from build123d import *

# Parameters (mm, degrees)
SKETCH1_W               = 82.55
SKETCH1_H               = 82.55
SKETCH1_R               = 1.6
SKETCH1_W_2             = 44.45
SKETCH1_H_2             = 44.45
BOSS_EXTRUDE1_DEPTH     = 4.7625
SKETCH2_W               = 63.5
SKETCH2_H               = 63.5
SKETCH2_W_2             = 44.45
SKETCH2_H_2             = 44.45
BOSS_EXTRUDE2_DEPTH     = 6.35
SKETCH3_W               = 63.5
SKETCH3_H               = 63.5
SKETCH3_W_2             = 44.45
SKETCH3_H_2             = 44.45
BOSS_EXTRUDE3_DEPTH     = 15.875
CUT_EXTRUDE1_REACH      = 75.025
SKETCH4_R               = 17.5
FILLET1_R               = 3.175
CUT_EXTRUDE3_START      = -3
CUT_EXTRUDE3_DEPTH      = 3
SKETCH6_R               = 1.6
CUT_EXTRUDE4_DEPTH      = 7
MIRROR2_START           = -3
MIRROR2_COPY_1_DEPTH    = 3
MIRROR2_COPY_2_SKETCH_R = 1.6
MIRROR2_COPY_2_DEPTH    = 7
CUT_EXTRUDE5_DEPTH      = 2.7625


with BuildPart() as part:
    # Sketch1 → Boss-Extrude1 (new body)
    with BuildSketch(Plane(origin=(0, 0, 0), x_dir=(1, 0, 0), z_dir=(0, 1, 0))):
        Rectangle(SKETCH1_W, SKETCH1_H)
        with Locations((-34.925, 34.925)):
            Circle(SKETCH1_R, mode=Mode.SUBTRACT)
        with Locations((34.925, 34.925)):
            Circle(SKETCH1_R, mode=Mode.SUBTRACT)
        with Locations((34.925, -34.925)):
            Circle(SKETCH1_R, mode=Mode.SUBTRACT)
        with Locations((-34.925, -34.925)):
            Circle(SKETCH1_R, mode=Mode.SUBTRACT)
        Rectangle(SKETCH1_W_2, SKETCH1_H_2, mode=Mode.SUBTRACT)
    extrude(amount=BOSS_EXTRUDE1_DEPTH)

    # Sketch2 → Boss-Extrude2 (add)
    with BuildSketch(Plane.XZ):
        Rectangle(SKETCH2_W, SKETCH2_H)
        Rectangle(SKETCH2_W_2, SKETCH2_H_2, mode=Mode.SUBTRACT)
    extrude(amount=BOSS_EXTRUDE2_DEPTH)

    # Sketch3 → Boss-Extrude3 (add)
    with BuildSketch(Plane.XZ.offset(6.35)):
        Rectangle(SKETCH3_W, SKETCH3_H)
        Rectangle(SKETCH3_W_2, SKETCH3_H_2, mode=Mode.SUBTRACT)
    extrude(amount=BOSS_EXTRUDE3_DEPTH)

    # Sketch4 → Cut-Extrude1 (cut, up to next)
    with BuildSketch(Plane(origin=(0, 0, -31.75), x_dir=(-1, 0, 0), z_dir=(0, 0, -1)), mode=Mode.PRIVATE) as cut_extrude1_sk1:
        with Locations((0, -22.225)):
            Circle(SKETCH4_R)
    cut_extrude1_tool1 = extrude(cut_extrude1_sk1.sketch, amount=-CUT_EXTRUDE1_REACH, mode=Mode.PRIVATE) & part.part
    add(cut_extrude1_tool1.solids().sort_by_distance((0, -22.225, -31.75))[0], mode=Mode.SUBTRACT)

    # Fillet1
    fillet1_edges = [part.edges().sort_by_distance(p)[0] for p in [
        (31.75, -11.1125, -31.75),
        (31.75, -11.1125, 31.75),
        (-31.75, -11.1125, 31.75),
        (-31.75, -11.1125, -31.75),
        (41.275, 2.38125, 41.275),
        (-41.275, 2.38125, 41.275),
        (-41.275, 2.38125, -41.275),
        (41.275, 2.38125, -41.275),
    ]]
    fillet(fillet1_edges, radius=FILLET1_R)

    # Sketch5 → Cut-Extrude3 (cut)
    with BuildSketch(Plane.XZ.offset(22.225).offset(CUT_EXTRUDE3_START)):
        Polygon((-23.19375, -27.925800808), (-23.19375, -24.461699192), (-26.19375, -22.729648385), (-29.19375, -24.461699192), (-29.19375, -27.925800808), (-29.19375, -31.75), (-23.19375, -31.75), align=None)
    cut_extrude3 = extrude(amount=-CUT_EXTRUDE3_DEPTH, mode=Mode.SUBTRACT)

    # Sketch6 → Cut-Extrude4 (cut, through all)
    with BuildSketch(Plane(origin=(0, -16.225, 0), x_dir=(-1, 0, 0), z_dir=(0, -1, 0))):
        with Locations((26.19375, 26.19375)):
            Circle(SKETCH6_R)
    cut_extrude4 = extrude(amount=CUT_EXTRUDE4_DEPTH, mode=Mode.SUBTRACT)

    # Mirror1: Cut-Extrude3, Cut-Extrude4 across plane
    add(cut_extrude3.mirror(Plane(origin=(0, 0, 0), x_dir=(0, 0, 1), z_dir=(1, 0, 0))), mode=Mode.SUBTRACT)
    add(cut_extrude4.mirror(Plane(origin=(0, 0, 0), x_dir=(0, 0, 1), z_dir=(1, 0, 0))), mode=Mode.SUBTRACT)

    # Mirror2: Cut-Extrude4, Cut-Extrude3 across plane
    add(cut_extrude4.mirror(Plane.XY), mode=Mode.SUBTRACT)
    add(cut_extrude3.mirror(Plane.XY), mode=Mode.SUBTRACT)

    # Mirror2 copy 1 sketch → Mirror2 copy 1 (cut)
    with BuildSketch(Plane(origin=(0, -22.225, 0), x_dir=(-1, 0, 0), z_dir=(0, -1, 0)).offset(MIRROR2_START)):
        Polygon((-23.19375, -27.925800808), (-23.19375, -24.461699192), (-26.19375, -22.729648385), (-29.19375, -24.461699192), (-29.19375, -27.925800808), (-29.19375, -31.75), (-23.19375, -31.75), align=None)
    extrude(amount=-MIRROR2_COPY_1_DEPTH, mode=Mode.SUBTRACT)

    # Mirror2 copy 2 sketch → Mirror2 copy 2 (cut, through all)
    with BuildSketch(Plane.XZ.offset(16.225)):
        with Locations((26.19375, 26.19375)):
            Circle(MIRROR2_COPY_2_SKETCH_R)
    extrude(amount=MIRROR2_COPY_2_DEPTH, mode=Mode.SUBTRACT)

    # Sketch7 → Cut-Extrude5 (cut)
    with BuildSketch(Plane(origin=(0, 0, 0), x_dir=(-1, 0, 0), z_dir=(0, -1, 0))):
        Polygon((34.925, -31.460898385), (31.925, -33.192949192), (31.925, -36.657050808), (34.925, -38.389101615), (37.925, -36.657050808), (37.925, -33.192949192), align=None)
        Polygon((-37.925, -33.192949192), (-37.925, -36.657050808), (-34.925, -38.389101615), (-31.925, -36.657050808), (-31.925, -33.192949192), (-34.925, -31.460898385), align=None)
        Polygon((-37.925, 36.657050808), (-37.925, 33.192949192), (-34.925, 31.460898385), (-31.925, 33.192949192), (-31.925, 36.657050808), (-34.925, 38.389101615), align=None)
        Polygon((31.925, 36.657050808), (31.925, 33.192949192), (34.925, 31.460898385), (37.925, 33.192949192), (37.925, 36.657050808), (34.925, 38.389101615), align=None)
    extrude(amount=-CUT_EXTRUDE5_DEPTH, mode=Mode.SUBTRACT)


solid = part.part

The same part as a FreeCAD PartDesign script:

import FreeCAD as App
import Part
import Sketcher

V = App.Vector
Q = App.Units.Quantity


def edges_at(feature, points):
    """Names of the edges that pass closest to the given points."""
    edges = feature.Shape.Edges
    near = lambda p: min(range(len(edges)), key=lambda i: edges[i].distToShape(Part.Vertex(*p))[0])
    return sorted({f"Edge{near(p) + 1}" for p in points})


def add_polygon(sketch, points):
    """Adds a closed chain of lines whose ends are joined by coincident constraints."""
    first, n = sketch.GeometryCount, len(points)
    for a, b in zip(points, points[1:] + points[:1]):
        sketch.addGeometry(Part.LineSegment(App.Vector(*a, 0), App.Vector(*b, 0)), False)
    for i in range(n):
        sketch.addConstraint(Sketcher.Constraint("Coincident", first + i, 2, first + (i + 1) % n, 1))

doc = App.newDocument("Part")
body = doc.addObject("PartDesign::Body", "Body")

# Sketch on XZ plane
sketch1 = doc.addObject("Sketcher::SketchObject", "Sketch")
body.addObject(sketch1)
sketch1.AttachmentSupport = (doc.XZ_Plane, [""])
sketch1.MapMode = "FlatFace"
add_polygon(sketch1, [(-41.3, -41.3), (-41.3, 41.3), (41.3, 41.3), (41.3, -41.3)])  # lines 0-3
sketch1.addGeometry(Part.Circle(V(-34.9, 34.9, 0), V(0, 0, 1), 1.6), False)  # 4
sketch1.addGeometry(Part.Circle(V(34.9, 34.9, 0), V(0, 0, 1), 1.6), False)  # 5
sketch1.addGeometry(Part.Circle(V(-34.9, -34.9, 0), V(0, 0, 1), 1.6), False)  # 6
add_polygon(sketch1, [(22.2, 22.2), (-22.2, 22.2), (-22.2, -22.2), (22.2, -22.2)])  # lines 7-10
sketch1.addGeometry(Part.Circle(V(34.9, -34.9, 0), V(0, 0, 1), 1.6), False)  # 11
sketch1.addConstraint([
    Sketcher.Constraint("Vertical", 0),
    Sketcher.Constraint("Horizontal", 1),
    Sketcher.Constraint("Vertical", 2),
    Sketcher.Constraint("Horizontal", 3),
    Sketcher.Constraint("Horizontal", 7),
    Sketcher.Constraint("Vertical", 8),
    Sketcher.Constraint("Horizontal", 9),
    Sketcher.Constraint("Vertical", 10),
    Sketcher.Constraint("Equal", 4, 5),
    Sketcher.Constraint("Equal", 5, 6),
    Sketcher.Constraint("Equal", 6, 11),
    Sketcher.Constraint("Symmetric", 5, 3, 6, 3, -1, 1),
    Sketcher.Constraint("Symmetric", 4, 3, 11, 3, -1, 1),
    Sketcher.Constraint("Symmetric", 0, 2, 2, 2, -1, 1),
    Sketcher.Constraint("Symmetric", 7, 2, 9, 2, -1, 1),
    Sketcher.Constraint("Symmetric", 4, 3, 5, 3, -2),
    Sketcher.Constraint("Equal", 3, 0),
    Sketcher.Constraint("Equal", 9, 8),
    Sketcher.Constraint("DistanceX", 0, 2, 5, 3, Q("3 in")),
    Sketcher.Constraint("DistanceY", 6, 3, 0, 2, Q("3 in")),
    Sketcher.Constraint("DistanceX", 1, 1, 1, 2, Q("3.25 in")),
    Sketcher.Constraint("DistanceX", 7, 2, 7, 1, Q("1.75 in")),
    Sketcher.Constraint("Diameter", 4, 3.2),
])
pad1 = doc.addObject("PartDesign::Pad", "Pad")
body.addObject(pad1)
pad1.Profile = sketch1
pad1.Length = Q("0.1875 in")
pad1.Reversed = True

# Sketch on XZ plane
sketch2 = doc.addObject("Sketcher::SketchObject", "Sketch001")
body.addObject(sketch2)
sketch2.AttachmentSupport = (doc.XZ_Plane, [""])
sketch2.MapMode = "FlatFace"
add_polygon(sketch2, [(-32, 32), (-32, -32), (32, -32), (32, 32)])  # lines 0-3
add_polygon(sketch2, [(22, -22), (-22, -22), (-22, 22), (22, 22)])  # lines 4-7
sketch2.addConstraint([
    Sketcher.Constraint("Vertical", 0),
    Sketcher.Constraint("Horizontal", 1),
    Sketcher.Constraint("Vertical", 2),
    Sketcher.Constraint("Horizontal", 3),
    Sketcher.Constraint("Horizontal", 4),
    Sketcher.Constraint("Vertical", 5),
    Sketcher.Constraint("Horizontal", 6),
    Sketcher.Constraint("Vertical", 7),
    Sketcher.Constraint("Symmetric", 0, 2, 2, 2, -1, 1),
    Sketcher.Constraint("Symmetric", 4, 2, 6, 2, -1, 1),
    Sketcher.Constraint("Equal", 3, 0),
    Sketcher.Constraint("Equal", 6, 5),
    Sketcher.Constraint("DistanceX", 1, 1, 1, 2, Q("2.5 in")),
    Sketcher.Constraint("DistanceX", 4, 2, 4, 1, Q("1.75 in")),
])
pad2 = doc.addObject("PartDesign::Pad", "Pad001")
body.addObject(pad2)
pad2.Profile = sketch2
pad2.Length = Q("0.25 in")

# Sketch on XZ plane
sketch3 = doc.addObject("Sketcher::SketchObject", "Sketch002")
body.addObject(sketch3)
sketch3.AttachmentSupport = (doc.XZ_Plane, [""])
sketch3.MapMode = "FlatFace"
sketch3.AttachmentOffset = App.Placement(V(0, 0, 0.25 * 25.4), App.Rotation())
add_polygon(sketch3, [(-32, 32), (-32, -32), (32, -32), (32, 32)])  # lines 0-3
add_polygon(sketch3, [(22, -22), (-22, -22), (-22, 22), (22, 22)])  # lines 4-7
sketch3.addConstraint([
    Sketcher.Constraint("Vertical", 0),
    Sketcher.Constraint("Horizontal", 1),
    Sketcher.Constraint("Vertical", 2),
    Sketcher.Constraint("Horizontal", 3),
    Sketcher.Constraint("Horizontal", 4),
    Sketcher.Constraint("Vertical", 5),
    Sketcher.Constraint("Horizontal", 6),
    Sketcher.Constraint("Vertical", 7),
    Sketcher.Constraint("Symmetric", 0, 2, 2, 2, -1, 1),
    Sketcher.Constraint("Symmetric", 4, 2, 6, 2, -1, 1),
    Sketcher.Constraint("Equal", 3, 0),
    Sketcher.Constraint("Equal", 6, 5),
    Sketcher.Constraint("DistanceX", 1, 1, 1, 2, Q("2.5 in")),
    Sketcher.Constraint("DistanceX", 4, 2, 4, 1, Q("1.75 in")),
])
pad3 = doc.addObject("PartDesign::Pad", "Pad002")
body.addObject(pad3)
pad3.Profile = sketch3
pad3.Length = Q("0.625 in")

# Sketch on XY plane
sketch4 = doc.addObject("Sketcher::SketchObject", "Sketch003")
body.addObject(sketch4)
sketch4.AttachmentSupport = (doc.XY_Plane, [""])
sketch4.MapMode = "FlatFace"
sketch4.AttachmentOffset = App.Placement(V(0, 0, -1.25 * 25.4), App.Rotation())
sketch4.addGeometry(Part.Circle(V(0, -22, 0), V(0, 0, 1), 18), False)
sketch4.addConstraint([
    Sketcher.Constraint("PointOnObject", 0, 3, -2),
    Sketcher.Constraint("Diameter", 0, 35.0),
    Sketcher.Constraint("DistanceY", 0, 3, -1, 1, Q("0.875 in")),
])
pocket1 = doc.addObject("PartDesign::Pocket", "Pocket")
body.addObject(pocket1)
pocket1.Profile = sketch4
pocket1.Type = "UpToFirst"
pocket1.Reversed = True
doc.recompute()

fillet = doc.addObject("PartDesign::Fillet", "Fillet")
body.addObject(fillet)
fillet.Base = (pocket1, edges_at(pocket1, [
    (31.75, -11.113, -31.75),
    (31.75, -11.113, 31.75),
    (-31.75, -11.113, 31.75),
    (-31.75, -11.113, -31.75),
    (41.275, 2.381, 41.275),
    (-41.275, 2.381, 41.275),
    (-41.275, 2.381, -41.275),
    (41.275, 2.381, -41.275),
]))
fillet.Radius = Q("0.125 in")

# Sketch on XZ plane
sketch5 = doc.addObject("Sketcher::SketchObject", "Sketch004")
body.addObject(sketch5)
sketch5.AttachmentSupport = (doc.XZ_Plane, [""])
sketch5.MapMode = "FlatFace"
sketch5.AttachmentOffset = App.Placement(V(0, 0, 19.225), App.Rotation())
add_polygon(sketch5, [(-23.2, -24.5), (-26.2, -22.7), (-29.2, -24.5), (-29.2, -31.8), (-23.2, -31.8)])  # lines 0-4
sketch5.addConstraint([
    Sketcher.Constraint("Vertical", 2),
    Sketcher.Constraint("Horizontal", 3),
    Sketcher.Constraint("Vertical", 4),
    Sketcher.Constraint("Horizontal", 1, 2, 4, 2),
    Sketcher.Constraint("Equal", 0, 1),
    Sketcher.Constraint("Angle", 0, Q("150 deg")),
    Sketcher.Constraint("DistanceY", 2, 2, -1, 1, Q("1.25 in")),
    Sketcher.Constraint("DistanceX", 0, 2, -1, 1, Q("1.03125 in")),
    Sketcher.Constraint("DistanceX", 3, 1, 3, 2, 6.0),
    Sketcher.Constraint("DistanceY", 2, 2, 2, 1, 7.288301),
])
pocket2 = doc.addObject("PartDesign::Pocket", "Pocket001")
body.addObject(pocket2)
pocket2.Profile = sketch5
pocket2.Length = 3

# Sketch on XZ plane
sketch6 = doc.addObject("Sketcher::SketchObject", "Sketch005")
body.addObject(sketch6)
sketch6.AttachmentSupport = (doc.XZ_Plane, [""])
sketch6.MapMode = "FlatFace"
sketch6.AttachmentOffset = App.Placement(V(0, 0, 16.225), App.Rotation())
sketch6.addGeometry(Part.Circle(V(-26.2, -26.2, 0), V(0, 0, 1), 1.6), False)
sketch6.addConstraint([
    Sketcher.Constraint("Diameter", 0, 3.2),
    Sketcher.Constraint("DistanceX", 0, 3, -1, 1, Q("1.03125 in")),
    Sketcher.Constraint("DistanceY", 0, 3, -1, 1, Q("1.03125 in")),
])
pocket3 = doc.addObject("PartDesign::Pocket", "Pocket002")
body.addObject(pocket3)
pocket3.Profile = sketch6
pocket3.Type = "ThroughAll"
pocket3.Reversed = True
doc.recompute()

mirrored = doc.addObject("PartDesign::Mirrored", "Mirrored")
body.addObject(mirrored)
mirrored.Originals = [pocket2, pocket3]
mirrored.MirrorPlane = (doc.YZ_Plane, [""])
body.Tip = mirrored
doc.recompute()

mirrored2 = doc.addObject("PartDesign::Mirrored", "Mirrored001")
body.addObject(mirrored2)
mirrored2.Originals = [pocket3, pocket2]
mirrored2.MirrorPlane = (doc.XY_Plane, [""])
body.Tip = mirrored2

# Sketch on XZ plane
sketch7 = doc.addObject("Sketcher::SketchObject", "Sketch006")
body.addObject(sketch7)
sketch7.AttachmentSupport = (doc.XZ_Plane, [""])
sketch7.MapMode = "FlatFace"
sketch7.AttachmentOffset = App.Placement(V(0, 0, 19.225), App.Rotation())
add_polygon(sketch7, [(23.2, 24.5), (26.2, 22.7), (29.2, 24.5), (29.2, 31.8), (23.2, 31.8)])  # lines 0-4
sketch7.addConstraint([
    Sketcher.Constraint("Vertical", 2),
    Sketcher.Constraint("Horizontal", 3),
    Sketcher.Constraint("Vertical", 4),
    Sketcher.Constraint("Horizontal", 1, 2, 4, 2),
    Sketcher.Constraint("Equal", 0, 1),
    Sketcher.Constraint("Angle", 0, Q("-30 deg")),
    Sketcher.Constraint("DistanceY", -1, 1, 2, 2, Q("1.25 in")),
    Sketcher.Constraint("DistanceX", -1, 1, 0, 2, Q("1.03125 in")),
    Sketcher.Constraint("DistanceX", 3, 2, 3, 1, 6.0),
    Sketcher.Constraint("DistanceY", 2, 1, 2, 2, 7.288301),
])
pocket4 = doc.addObject("PartDesign::Pocket", "Pocket003")
body.addObject(pocket4)
pocket4.Profile = sketch7
pocket4.Length = 3

# Sketch on XZ plane
sketch8 = doc.addObject("Sketcher::SketchObject", "Sketch007")
body.addObject(sketch8)
sketch8.AttachmentSupport = (doc.XZ_Plane, [""])
sketch8.MapMode = "FlatFace"
sketch8.AttachmentOffset = App.Placement(V(0, 0, 16.225), App.Rotation())
sketch8.addGeometry(Part.Circle(V(26.2, 26.2, 0), V(0, 0, 1), 1.6), False)
sketch8.addConstraint([
    Sketcher.Constraint("Diameter", 0, 3.2),
    Sketcher.Constraint("DistanceX", -1, 1, 0, 3, Q("1.03125 in")),
    Sketcher.Constraint("DistanceY", -1, 1, 0, 3, Q("1.03125 in")),
])
pocket5 = doc.addObject("PartDesign::Pocket", "Pocket004")
body.addObject(pocket5)
pocket5.Profile = sketch8
pocket5.Type = "ThroughAll"
pocket5.Reversed = True

# Sketch on XZ plane
sketch9 = doc.addObject("Sketcher::SketchObject", "Sketch008")
body.addObject(sketch9)
sketch9.AttachmentSupport = (doc.XZ_Plane, [""])
sketch9.MapMode = "FlatFace"
add_polygon(sketch9, [(-34.9, 31.5), (-31.9, 33.2), (-31.9, 36.7), (-34.9, 38.4), (-37.9, 36.7), (-37.9, 33.2)])  # lines 0-5
add_polygon(sketch9, [(37.9, 33.2), (37.9, 36.7), (34.9, 38.4), (31.9, 36.7), (31.9, 33.2), (34.9, 31.5)])  # lines 6-11
add_polygon(sketch9, [(37.9, -36.7), (37.9, -33.2), (34.9, -31.5), (31.9, -33.2), (31.9, -36.7), (34.9, -38.4)])  # lines 12-17
add_polygon(sketch9, [(-31.9, -36.7), (-31.9, -33.2), (-34.9, -31.5), (-37.9, -33.2), (-37.9, -36.7), (-34.9, -38.4)])  # lines 18-23
sketch9.addConstraint([
    Sketcher.Constraint("Vertical", 1),
    Sketcher.Constraint("Vertical", 4),
    Sketcher.Constraint("Vertical", 6),
    Sketcher.Constraint("Vertical", 9),
    Sketcher.Constraint("Vertical", 12),
    Sketcher.Constraint("Vertical", 15),
    Sketcher.Constraint("Vertical", 18),
    Sketcher.Constraint("Vertical", 21),
    Sketcher.Constraint("Symmetric", 4, 2, 12, 2, -1, 1),
    Sketcher.Constraint("Symmetric", 5, 2, 13, 2, -1, 1),
    Sketcher.Constraint("Symmetric", 0, 2, 14, 2, -1, 1),
    Sketcher.Constraint("Symmetric", 2, 2, 16, 2, -1, 1),
    Sketcher.Constraint("Symmetric", 9, 2, 18, 2, -1, 1),
    Sketcher.Constraint("Symmetric", 10, 2, 19, 2, -1, 1),
    Sketcher.Constraint("Symmetric", 11, 2, 20, 2, -1, 1),
    Sketcher.Constraint("Symmetric", 7, 2, 22, 2, -1, 1),
    Sketcher.Constraint("Symmetric", 3, 2, 6, 2, -2),
    Sketcher.Constraint("Symmetric", 2, 2, 7, 2, -2),
    Sketcher.Constraint("Symmetric", 1, 2, 8, 2, -2),
    Sketcher.Constraint("Symmetric", 5, 2, 10, 2, -2),
    Sketcher.Constraint("Parallel", 0, 3),
    Sketcher.Constraint("Parallel", 2, 5),
    Sketcher.Constraint("Parallel", 5, 7),
    Sketcher.Constraint("Parallel", 7, 10),
    Sketcher.Constraint("Parallel", 8, 11),
    Sketcher.Constraint("Parallel", 13, 16),
    Sketcher.Constraint("Parallel", 14, 17),
    Sketcher.Constraint("Parallel", 19, 22),
    Sketcher.Constraint("Parallel", 20, 23),
    Sketcher.Constraint("Horizontal", 1, 2, 3, 2),
    Sketcher.Constraint("Horizontal", 0, 2, 4, 2),
    Sketcher.Constraint("Angle", 0, Q("30 deg")),
    Sketcher.Constraint("DistanceX", 1, 2, 6, 2, Q("2.75 in")),
    Sketcher.Constraint("DistanceY", 12, 2, 6, 2, Q("2.75 in")),
    Sketcher.Constraint("DistanceY", 1, 1, 1, 2, 3.464102),
    Sketcher.Constraint("Distance", 0, 3.464102),
])
pocket6 = doc.addObject("PartDesign::Pocket", "Pocket005")
body.addObject(pocket6)
pocket6.Profile = sketch9
pocket6.Length = 2.7625

doc.recompute()
